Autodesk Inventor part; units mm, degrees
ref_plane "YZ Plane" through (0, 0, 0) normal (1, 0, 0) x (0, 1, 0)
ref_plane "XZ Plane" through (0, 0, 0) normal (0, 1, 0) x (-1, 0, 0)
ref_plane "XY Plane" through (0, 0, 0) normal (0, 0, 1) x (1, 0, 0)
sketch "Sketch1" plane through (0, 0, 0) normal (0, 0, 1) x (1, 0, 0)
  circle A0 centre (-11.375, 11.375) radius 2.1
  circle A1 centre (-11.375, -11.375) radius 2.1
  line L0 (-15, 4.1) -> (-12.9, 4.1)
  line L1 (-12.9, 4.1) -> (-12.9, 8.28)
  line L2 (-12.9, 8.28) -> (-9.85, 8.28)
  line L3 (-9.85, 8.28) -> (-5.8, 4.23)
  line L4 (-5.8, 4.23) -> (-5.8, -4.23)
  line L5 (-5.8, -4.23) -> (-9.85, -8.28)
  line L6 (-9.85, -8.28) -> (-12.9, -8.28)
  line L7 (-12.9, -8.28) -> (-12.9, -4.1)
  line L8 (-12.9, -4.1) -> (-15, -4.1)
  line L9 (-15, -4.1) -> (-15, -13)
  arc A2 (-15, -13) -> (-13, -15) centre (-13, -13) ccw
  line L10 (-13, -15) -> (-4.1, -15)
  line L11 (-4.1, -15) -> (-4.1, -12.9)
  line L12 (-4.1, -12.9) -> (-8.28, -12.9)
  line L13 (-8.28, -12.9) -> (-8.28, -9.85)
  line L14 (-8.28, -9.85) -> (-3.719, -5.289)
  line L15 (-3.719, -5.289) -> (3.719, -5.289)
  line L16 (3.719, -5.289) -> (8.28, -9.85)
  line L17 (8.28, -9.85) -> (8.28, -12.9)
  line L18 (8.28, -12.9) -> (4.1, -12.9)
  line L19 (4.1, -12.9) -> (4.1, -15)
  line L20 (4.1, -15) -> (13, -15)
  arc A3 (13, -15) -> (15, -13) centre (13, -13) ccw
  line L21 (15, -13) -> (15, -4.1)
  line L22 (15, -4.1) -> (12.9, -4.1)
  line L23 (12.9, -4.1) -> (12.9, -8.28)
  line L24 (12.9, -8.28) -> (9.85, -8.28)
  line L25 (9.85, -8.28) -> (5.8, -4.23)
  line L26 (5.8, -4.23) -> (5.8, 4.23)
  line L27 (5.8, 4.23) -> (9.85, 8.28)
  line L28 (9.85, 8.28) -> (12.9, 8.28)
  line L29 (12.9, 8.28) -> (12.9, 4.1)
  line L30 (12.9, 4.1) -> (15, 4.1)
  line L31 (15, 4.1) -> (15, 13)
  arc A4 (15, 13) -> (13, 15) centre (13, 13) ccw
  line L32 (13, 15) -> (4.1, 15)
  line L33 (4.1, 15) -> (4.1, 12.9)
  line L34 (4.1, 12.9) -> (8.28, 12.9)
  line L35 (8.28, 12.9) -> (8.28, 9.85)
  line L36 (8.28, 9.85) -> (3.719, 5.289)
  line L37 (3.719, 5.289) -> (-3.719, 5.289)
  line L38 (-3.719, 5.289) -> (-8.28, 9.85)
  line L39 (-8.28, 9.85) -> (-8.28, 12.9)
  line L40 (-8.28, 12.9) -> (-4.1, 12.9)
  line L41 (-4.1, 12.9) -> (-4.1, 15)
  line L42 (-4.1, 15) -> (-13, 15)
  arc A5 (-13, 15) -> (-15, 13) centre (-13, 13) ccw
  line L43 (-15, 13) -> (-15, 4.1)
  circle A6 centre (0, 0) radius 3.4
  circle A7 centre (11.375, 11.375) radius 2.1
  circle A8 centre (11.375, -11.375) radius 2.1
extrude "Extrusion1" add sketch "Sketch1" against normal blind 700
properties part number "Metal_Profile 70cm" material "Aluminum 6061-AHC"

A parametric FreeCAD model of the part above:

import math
import FreeCAD as App
import Part
import Sketcher
from FreeCAD import Vector
Q = App.Units.Quantity

doc = App.newDocument("Part")
body = doc.addObject("PartDesign::Body", "Body")

# Sketch on XY plane
sketch1 = body.newObject("Sketcher::SketchObject", "Sketch")
sketch1.AttachmentSupport = (doc.getObject("XY_Plane"), [""])
sketch1.MapMode = "FlatFace"
sketch1.addGeometry(Part.LineSegment(Vector(-15, 13, 0), Vector(-15, 4.1, 0)), False)
sketch1.addGeometry(Part.LineSegment(Vector(-15, 4.1, 0), Vector(-12.9, 4.1, 0)), False)
sketch1.addGeometry(Part.LineSegment(Vector(-12.9, 4.1, 0), Vector(-12.9, 8.28, 0)), False)
sketch1.addGeometry(Part.LineSegment(Vector(-12.9, 8.28, 0), Vector(-9.85, 8.28, 0)), False)
sketch1.addGeometry(Part.LineSegment(Vector(-9.85, 8.28, 0), Vector(-5.8, 4.23, 0)), False)
sketch1.addGeometry(Part.LineSegment(Vector(-5.8, 4.23, 0), Vector(-5.8, -4.23, 0)), False)
sketch1.addGeometry(Part.LineSegment(Vector(-5.8, -4.23, 0), Vector(-9.85, -8.28, 0)), False)
sketch1.addGeometry(Part.LineSegment(Vector(-9.85, -8.28, 0), Vector(-12.9, -8.28, 0)), False)
sketch1.addGeometry(Part.LineSegment(Vector(-12.9, -8.28, 0), Vector(-12.9, -4.1, 0)), False)
sketch1.addGeometry(Part.LineSegment(Vector(-12.9, -4.1, 0), Vector(-15, -4.1, 0)), False)
sketch1.addGeometry(Part.LineSegment(Vector(-15, -4.1, 0), Vector(-15, -13, 0)), False)
sketch1.addGeometry(Part.ArcOfCircle(Part.Circle(Vector(-13, -13, 0), Vector(0, 0, 1), 2), math.radians(180), math.radians(270)), False)
sketch1.addGeometry(Part.LineSegment(Vector(-13, -15, 0), Vector(-4.1, -15, 0)), False)
sketch1.addGeometry(Part.LineSegment(Vector(-4.1, -15, 0), Vector(-4.1, -12.9, 0)), False)
sketch1.addGeometry(Part.LineSegment(Vector(-4.1, -12.9, 0), Vector(-8.28, -12.9, 0)), False)
sketch1.addGeometry(Part.LineSegment(Vector(-8.28, -12.9, 0), Vector(-8.28, -9.85, 0)), False)
sketch1.addGeometry(Part.LineSegment(Vector(-8.28, -9.85, 0), Vector(-3.719, -5.289, 0)), False)
sketch1.addGeometry(Part.LineSegment(Vector(-3.719, -5.289, 0), Vector(3.719, -5.289, 0)), False)
sketch1.addGeometry(Part.LineSegment(Vector(3.719, -5.289, 0), Vector(8.28, -9.85, 0)), False)
sketch1.addGeometry(Part.LineSegment(Vector(8.28, -9.85, 0), Vector(8.28, -12.9, 0)), False)
sketch1.addGeometry(Part.LineSegment(Vector(8.28, -12.9, 0), Vector(4.1, -12.9, 0)), False)
sketch1.addGeometry(Part.LineSegment(Vector(4.1, -12.9, 0), Vector(4.1, -15, 0)), False)
sketch1.addGeometry(Part.LineSegment(Vector(4.1, -15, 0), Vector(13, -15, 0)), False)
sketch1.addGeometry(Part.ArcOfCircle(Part.Circle(Vector(13, -13, 0), Vector(0, 0, 1), 2), math.radians(-90), math.radians(0)), False)
sketch1.addGeometry(Part.LineSegment(Vector(15, -13, 0), Vector(15, -4.1, 0)), False)
sketch1.addGeometry(Part.LineSegment(Vector(15, -4.1, 0), Vector(12.9, -4.1, 0)), False)
sketch1.addGeometry(Part.LineSegment(Vector(12.9, -4.1, 0), Vector(12.9, -8.28, 0)), False)
sketch1.addGeometry(Part.LineSegment(Vector(12.9, -8.28, 0), Vector(9.85, -8.28, 0)), False)
sketch1.addGeometry(Part.LineSegment(Vector(9.85, -8.28, 0), Vector(5.8, -4.23, 0)), False)
sketch1.addGeometry(Part.LineSegment(Vector(5.8, -4.23, 0), Vector(5.8, 4.23, 0)), False)
sketch1.addGeometry(Part.LineSegment(Vector(5.8, 4.23, 0), Vector(9.85, 8.28, 0)), False)
sketch1.addGeometry(Part.LineSegment(Vector(9.85, 8.28, 0), Vector(12.9, 8.28, 0)), False)
sketch1.addGeometry(Part.LineSegment(Vector(12.9, 8.28, 0), Vector(12.9, 4.1, 0)), False)
sketch1.addGeometry(Part.LineSegment(Vector(12.9, 4.1, 0), Vector(15, 4.1, 0)), False)
sketch1.addGeometry(Part.LineSegment(Vector(15, 4.1, 0), Vector(15, 13, 0)), False)
sketch1.addGeometry(Part.ArcOfCircle(Part.Circle(Vector(13, 13, 0), Vector(0, 0, 1), 2), math.radians(0), math.radians(90)), False)
sketch1.addGeometry(Part.LineSegment(Vector(13, 15, 0), Vector(4.1, 15, 0)), False)
sketch1.addGeometry(Part.LineSegment(Vector(4.1, 15, 0), Vector(4.1, 12.9, 0)), False)
sketch1.addGeometry(Part.LineSegment(Vector(4.1, 12.9, 0), Vector(8.28, 12.9, 0)), False)
sketch1.addGeometry(Part.LineSegment(Vector(8.28, 12.9, 0), Vector(8.28, 9.85, 0)), False)
sketch1.addGeometry(Part.LineSegment(Vector(8.28, 9.85, 0), Vector(3.719, 5.289, 0)), False)
sketch1.addGeometry(Part.LineSegment(Vector(3.719, 5.289, 0), Vector(-3.719, 5.289, 0)), False)
sketch1.addGeometry(Part.LineSegment(Vector(-3.719, 5.289, 0), Vector(-8.28, 9.85, 0)), False)
sketch1.addGeometry(Part.LineSegment(Vector(-8.28, 9.85, 0), Vector(-8.28, 12.9, 0)), False)
sketch1.addGeometry(Part.LineSegment(Vector(-8.28, 12.9, 0), Vector(-4.1, 12.9, 0)), False)
sketch1.addGeometry(Part.LineSegment(Vector(-4.1, 12.9, 0), Vector(-4.1, 15, 0)), False)
sketch1.addGeometry(Part.LineSegment(Vector(-4.1, 15, 0), Vector(-13, 15, 0)), False)
sketch1.addGeometry(Part.ArcOfCircle(Part.Circle(Vector(-13, 13, 0), Vector(0, 0, 1), 2), math.radians(90), math.radians(180)), False)
sketch1.addGeometry(Part.Circle(Vector(-11.375, -11.375, 0), Vector(0, 0, 1), 2.1), False)
sketch1.addGeometry(Part.Circle(Vector(11.375, -11.375, 0), Vector(0, 0, 1), 2.1), False)
sketch1.addGeometry(Part.Circle(Vector(-11.375, 11.375, 0), Vector(0, 0, 1), 2.1), False)
sketch1.addGeometry(Part.Circle(Vector(0, 0, 0), Vector(0, 0, 1), 3.4), False)
sketch1.addGeometry(Part.Circle(Vector(11.375, 11.375, 0), Vector(0, 0, 1), 2.1), False)
sketch1.addConstraint(Sketcher.Constraint("Coincident", 0, 2, 1, 1))
sketch1.addConstraint(Sketcher.Constraint("Coincident", 1, 2, 2, 1))
sketch1.addConstraint(Sketcher.Constraint("Coincident", 2, 2, 3, 1))
sketch1.addConstraint(Sketcher.Constraint("Coincident", 3, 2, 4, 1))
sketch1.addConstraint(Sketcher.Constraint("Coincident", 4, 2, 5, 1))
sketch1.addConstraint(Sketcher.Constraint("Coincident", 5, 2, 6, 1))
sketch1.addConstraint(Sketcher.Constraint("Coincident", 6, 2, 7, 1))
sketch1.addConstraint(Sketcher.Constraint("Coincident", 7, 2, 8, 1))
sketch1.addConstraint(Sketcher.Constraint("Coincident", 8, 2, 9, 1))
sketch1.addConstraint(Sketcher.Constraint("Coincident", 9, 2, 10, 1))
sketch1.addConstraint(Sketcher.Constraint("Tangent", 10, 2, 11, 1))
sketch1.addConstraint(Sketcher.Constraint("Tangent", 11, 2, 12, 1))
sketch1.addConstraint(Sketcher.Constraint("Coincident", 12, 2, 13, 1))
sketch1.addConstraint(Sketcher.Constraint("Coincident", 13, 2, 14, 1))
sketch1.addConstraint(Sketcher.Constraint("Coincident", 14, 2, 15, 1))
sketch1.addConstraint(Sketcher.Constraint("Coincident", 15, 2, 16, 1))
sketch1.addConstraint(Sketcher.Constraint("Coincident", 16, 2, 17, 1))
sketch1.addConstraint(Sketcher.Constraint("Coincident", 17, 2, 18, 1))
sketch1.addConstraint(Sketcher.Constraint("Coincident", 18, 2, 19, 1))
sketch1.addConstraint(Sketcher.Constraint("Coincident", 19, 2, 20, 1))
sketch1.addConstraint(Sketcher.Constraint("Coincident", 20, 2, 21, 1))
sketch1.addConstraint(Sketcher.Constraint("Coincident", 21, 2, 22, 1))
sketch1.addConstraint(Sketcher.Constraint("Tangent", 22, 2, 23, 1))
sketch1.addConstraint(Sketcher.Constraint("Tangent", 23, 2, 24, 1))
sketch1.addConstraint(Sketcher.Constraint("Coincident", 24, 2, 25, 1))
sketch1.addConstraint(Sketcher.Constraint("Coincident", 25, 2, 26, 1))
sketch1.addConstraint(Sketcher.Constraint("Coincident", 26, 2, 27, 1))
sketch1.addConstraint(Sketcher.Constraint("Coincident", 27, 2, 28, 1))
sketch1.addConstraint(Sketcher.Constraint("Coincident", 28, 2, 29, 1))
sketch1.addConstraint(Sketcher.Constraint("Coincident", 29, 2, 30, 1))
sketch1.addConstraint(Sketcher.Constraint("Coincident", 30, 2, 31, 1))
sketch1.addConstraint(Sketcher.Constraint("Coincident", 31, 2, 32, 1))
sketch1.addConstraint(Sketcher.Constraint("Coincident", 32, 2, 33, 1))
sketch1.addConstraint(Sketcher.Constraint("Coincident", 33, 2, 34, 1))
sketch1.addConstraint(Sketcher.Constraint("Tangent", 34, 2, 35, 1))
sketch1.addConstraint(Sketcher.Constraint("Tangent", 35, 2, 36, 1))
sketch1.addConstraint(Sketcher.Constraint("Coincident", 36, 2, 37, 1))
sketch1.addConstraint(Sketcher.Constraint("Coincident", 37, 2, 38, 1))
sketch1.addConstraint(Sketcher.Constraint("Coincident", 38, 2, 39, 1))
sketch1.addConstraint(Sketcher.Constraint("Coincident", 39, 2, 40, 1))
sketch1.addConstraint(Sketcher.Constraint("Coincident", 40, 2, 41, 1))
sketch1.addConstraint(Sketcher.Constraint("Coincident", 41, 2, 42, 1))
sketch1.addConstraint(Sketcher.Constraint("Coincident", 42, 2, 43, 1))
sketch1.addConstraint(Sketcher.Constraint("Coincident", 43, 2, 44, 1))
sketch1.addConstraint(Sketcher.Constraint("Coincident", 44, 2, 45, 1))
sketch1.addConstraint(Sketcher.Constraint("Coincident", 45, 2, 46, 1))
sketch1.addConstraint(Sketcher.Constraint("Tangent", 46, 2, 47, 1))
sketch1.addConstraint(Sketcher.Constraint("Tangent", 47, 2, 0, 1))
sketch1.addConstraint(Sketcher.Constraint("Vertical", 0))
sketch1.addConstraint(Sketcher.Constraint("Horizontal", 1))
sketch1.addConstraint(Sketcher.Constraint("Vertical", 2))
sketch1.addConstraint(Sketcher.Constraint("Horizontal", 3))
sketch1.addConstraint(Sketcher.Constraint("Vertical", 5))
sketch1.addConstraint(Sketcher.Constraint("Horizontal", 7))
sketch1.addConstraint(Sketcher.Constraint("Vertical", 8))
sketch1.addConstraint(Sketcher.Constraint("Horizontal", 9))
sketch1.addConstraint(Sketcher.Constraint("Vertical", 10))
sketch1.addConstraint(Sketcher.Constraint("Horizontal", 12))
sketch1.addConstraint(Sketcher.Constraint("Vertical", 13))
sketch1.addConstraint(Sketcher.Constraint("Horizontal", 14))
sketch1.addConstraint(Sketcher.Constraint("Vertical", 15))
sketch1.addConstraint(Sketcher.Constraint("Horizontal", 17))
sketch1.addConstraint(Sketcher.Constraint("Vertical", 19))
sketch1.addConstraint(Sketcher.Constraint("Horizontal", 20))
sketch1.addConstraint(Sketcher.Constraint("Vertical", 21))
sketch1.addConstraint(Sketcher.Constraint("Horizontal", 22))
sketch1.addConstraint(Sketcher.Constraint("Vertical", 24))
sketch1.addConstraint(Sketcher.Constraint("Horizontal", 25))
sketch1.addConstraint(Sketcher.Constraint("Vertical", 26))
sketch1.addConstraint(Sketcher.Constraint("Horizontal", 27))
sketch1.addConstraint(Sketcher.Constraint("Vertical", 29))
sketch1.addConstraint(Sketcher.Constraint("Horizontal", 31))
sketch1.addConstraint(Sketcher.Constraint("Vertical", 32))
sketch1.addConstraint(Sketcher.Constraint("Horizontal", 33))
sketch1.addConstraint(Sketcher.Constraint("Vertical", 34))
sketch1.addConstraint(Sketcher.Constraint("Horizontal", 36))
sketch1.addConstraint(Sketcher.Constraint("Vertical", 37))
sketch1.addConstraint(Sketcher.Constraint("Horizontal", 38))
sketch1.addConstraint(Sketcher.Constraint("Vertical", 39))
sketch1.addConstraint(Sketcher.Constraint("Horizontal", 41))
sketch1.addConstraint(Sketcher.Constraint("Vertical", 43))
sketch1.addConstraint(Sketcher.Constraint("Horizontal", 44))
sketch1.addConstraint(Sketcher.Constraint("Vertical", 45))
sketch1.addConstraint(Sketcher.Constraint("Horizontal", 46))
sketch1.addConstraint(Sketcher.Constraint("Coincident", 51, 3, -1, 1))
sketch1.addConstraint(Sketcher.Constraint("Equal", 11, 23))
sketch1.addConstraint(Sketcher.Constraint("Equal", 23, 35))
sketch1.addConstraint(Sketcher.Constraint("Equal", 35, 47))
sketch1.addConstraint(Sketcher.Constraint("Equal", 48, 49))
sketch1.addConstraint(Sketcher.Constraint("Equal", 49, 50))
sketch1.addConstraint(Sketcher.Constraint("Equal", 50, 52))
sketch1.addConstraint(Sketcher.Constraint("Symmetric", 11, 3, 35, 3, -1, 1))
sketch1.addConstraint(Sketcher.Constraint("Symmetric", 23, 3, 47, 3, -1, 1))
sketch1.addConstraint(Sketcher.Constraint("Symmetric", 49, 3, 50, 3, -1, 1))
sketch1.addConstraint(Sketcher.Constraint("Symmetric", 48, 3, 52, 3, -1, 1))
sketch1.addConstraint(Sketcher.Constraint("Symmetric", 1, 2, 25, 2, -1, 1))
sketch1.addConstraint(Sketcher.Constraint("Symmetric", 3, 2, 27, 2, -1, 1))
sketch1.addConstraint(Sketcher.Constraint("Symmetric", 4, 2, 28, 2, -1, 1))
sketch1.addConstraint(Sketcher.Constraint("Symmetric", 6, 2, 30, 2, -1, 1))
sketch1.addConstraint(Sketcher.Constraint("Symmetric", 8, 2, 32, 2, -1, 1))
sketch1.addConstraint(Sketcher.Constraint("Symmetric", 13, 2, 37, 2, -1, 1))
sketch1.addConstraint(Sketcher.Constraint("Symmetric", 15, 2, 39, 2, -1, 1))
sketch1.addConstraint(Sketcher.Constraint("Symmetric", 16, 2, 40, 2, -1, 1))
sketch1.addConstraint(Sketcher.Constraint("Symmetric", 18, 2, 42, 2, -1, 1))
sketch1.addConstraint(Sketcher.Constraint("Symmetric", 20, 2, 44, 2, -1, 1))
sketch1.addConstraint(Sketcher.Constraint("Symmetric", 11, 3, 23, 3, -2))
sketch1.addConstraint(Sketcher.Constraint("Symmetric", 48, 3, 49, 3, -2))
sketch1.addConstraint(Sketcher.Constraint("Symmetric", 15, 2, 18, 2, -2))
sketch1.addConstraint(Sketcher.Constraint("Symmetric", 13, 2, 20, 2, -2))
sketch1.addConstraint(Sketcher.Constraint("Symmetric", 8, 2, 25, 2, -2))
sketch1.addConstraint(Sketcher.Constraint("Symmetric", 6, 2, 27, 2, -2))
sketch1.addConstraint(Sketcher.Constraint("Perpendicular", 4, 6))
sketch1.addConstraint(Sketcher.Constraint("Parallel", 6, 16))
sketch1.addConstraint(Sketcher.Constraint("Perpendicular", 16, 18))
sketch1.addConstraint(Sketcher.Constraint("Perpendicular", 28, 30))
sketch1.addConstraint(Sketcher.Constraint("Perpendicular", 40, 42))
sketch1.addConstraint(Sketcher.Constraint("Horizontal", 5, 2, 28, 2))
sketch1.addConstraint(Sketcher.Constraint("Equal", 46, 0))
sketch1.addConstraint(Sketcher.Constraint("Equal", 44, 2))
sketch1.addConstraint(Sketcher.Constraint("Equal", 33, 13))
sketch1.addConstraint(Sketcher.Constraint("Equal", 31, 15))
sketch1.addConstraint(Sketcher.Constraint("Radius", 11, Q("2 mm")))
sketch1.addConstraint(Sketcher.Constraint("Diameter", 48, Q("4.2 mm")))
sketch1.addConstraint(Sketcher.Constraint("Diameter", 51, Q("6.8 mm")))
sketch1.addConstraint(Sketcher.Constraint("DistanceX", 1, 1, 1, 2, Q("2.1 mm")))
sketch1.addConstraint(Sketcher.Constraint("DistanceX", 12, 1, 12, 2, Q("8.9 mm")))
sketch1.addConstraint(Sketcher.Constraint("DistanceX", 11, 3, -1, 1, Q("13 mm")))
sketch1.addConstraint(Sketcher.Constraint("DistanceY", 11, 3, -1, 1, Q("13 mm")))
sketch1.addConstraint(Sketcher.Constraint("DistanceX", 3, 1, 3, 2, Q("3.05 mm")))
sketch1.addConstraint(Sketcher.Constraint("DistanceX", 14, 2, 14, 1, Q("4.18 mm")))
sketch1.addConstraint(Sketcher.Constraint("DistanceY", 5, 2, 5, 1, Q("8.46 mm")))
sketch1.addConstraint(Sketcher.Constraint("DistanceX", 17, 1, 17, 2, Q("7.438 mm")))
sketch1.addConstraint(Sketcher.Constraint("DistanceX", 48, 3, 49, 3, Q("22.75 mm")))
sketch1.addConstraint(Sketcher.Constraint("DistanceY", 48, 3, 50, 3, Q("22.75 mm")))
pad1 = body.newObject("PartDesign::Pad", "Pad")
pad1.Profile = sketch1
pad1.Length = 700
pad1.Reversed = True

doc.recompute()
